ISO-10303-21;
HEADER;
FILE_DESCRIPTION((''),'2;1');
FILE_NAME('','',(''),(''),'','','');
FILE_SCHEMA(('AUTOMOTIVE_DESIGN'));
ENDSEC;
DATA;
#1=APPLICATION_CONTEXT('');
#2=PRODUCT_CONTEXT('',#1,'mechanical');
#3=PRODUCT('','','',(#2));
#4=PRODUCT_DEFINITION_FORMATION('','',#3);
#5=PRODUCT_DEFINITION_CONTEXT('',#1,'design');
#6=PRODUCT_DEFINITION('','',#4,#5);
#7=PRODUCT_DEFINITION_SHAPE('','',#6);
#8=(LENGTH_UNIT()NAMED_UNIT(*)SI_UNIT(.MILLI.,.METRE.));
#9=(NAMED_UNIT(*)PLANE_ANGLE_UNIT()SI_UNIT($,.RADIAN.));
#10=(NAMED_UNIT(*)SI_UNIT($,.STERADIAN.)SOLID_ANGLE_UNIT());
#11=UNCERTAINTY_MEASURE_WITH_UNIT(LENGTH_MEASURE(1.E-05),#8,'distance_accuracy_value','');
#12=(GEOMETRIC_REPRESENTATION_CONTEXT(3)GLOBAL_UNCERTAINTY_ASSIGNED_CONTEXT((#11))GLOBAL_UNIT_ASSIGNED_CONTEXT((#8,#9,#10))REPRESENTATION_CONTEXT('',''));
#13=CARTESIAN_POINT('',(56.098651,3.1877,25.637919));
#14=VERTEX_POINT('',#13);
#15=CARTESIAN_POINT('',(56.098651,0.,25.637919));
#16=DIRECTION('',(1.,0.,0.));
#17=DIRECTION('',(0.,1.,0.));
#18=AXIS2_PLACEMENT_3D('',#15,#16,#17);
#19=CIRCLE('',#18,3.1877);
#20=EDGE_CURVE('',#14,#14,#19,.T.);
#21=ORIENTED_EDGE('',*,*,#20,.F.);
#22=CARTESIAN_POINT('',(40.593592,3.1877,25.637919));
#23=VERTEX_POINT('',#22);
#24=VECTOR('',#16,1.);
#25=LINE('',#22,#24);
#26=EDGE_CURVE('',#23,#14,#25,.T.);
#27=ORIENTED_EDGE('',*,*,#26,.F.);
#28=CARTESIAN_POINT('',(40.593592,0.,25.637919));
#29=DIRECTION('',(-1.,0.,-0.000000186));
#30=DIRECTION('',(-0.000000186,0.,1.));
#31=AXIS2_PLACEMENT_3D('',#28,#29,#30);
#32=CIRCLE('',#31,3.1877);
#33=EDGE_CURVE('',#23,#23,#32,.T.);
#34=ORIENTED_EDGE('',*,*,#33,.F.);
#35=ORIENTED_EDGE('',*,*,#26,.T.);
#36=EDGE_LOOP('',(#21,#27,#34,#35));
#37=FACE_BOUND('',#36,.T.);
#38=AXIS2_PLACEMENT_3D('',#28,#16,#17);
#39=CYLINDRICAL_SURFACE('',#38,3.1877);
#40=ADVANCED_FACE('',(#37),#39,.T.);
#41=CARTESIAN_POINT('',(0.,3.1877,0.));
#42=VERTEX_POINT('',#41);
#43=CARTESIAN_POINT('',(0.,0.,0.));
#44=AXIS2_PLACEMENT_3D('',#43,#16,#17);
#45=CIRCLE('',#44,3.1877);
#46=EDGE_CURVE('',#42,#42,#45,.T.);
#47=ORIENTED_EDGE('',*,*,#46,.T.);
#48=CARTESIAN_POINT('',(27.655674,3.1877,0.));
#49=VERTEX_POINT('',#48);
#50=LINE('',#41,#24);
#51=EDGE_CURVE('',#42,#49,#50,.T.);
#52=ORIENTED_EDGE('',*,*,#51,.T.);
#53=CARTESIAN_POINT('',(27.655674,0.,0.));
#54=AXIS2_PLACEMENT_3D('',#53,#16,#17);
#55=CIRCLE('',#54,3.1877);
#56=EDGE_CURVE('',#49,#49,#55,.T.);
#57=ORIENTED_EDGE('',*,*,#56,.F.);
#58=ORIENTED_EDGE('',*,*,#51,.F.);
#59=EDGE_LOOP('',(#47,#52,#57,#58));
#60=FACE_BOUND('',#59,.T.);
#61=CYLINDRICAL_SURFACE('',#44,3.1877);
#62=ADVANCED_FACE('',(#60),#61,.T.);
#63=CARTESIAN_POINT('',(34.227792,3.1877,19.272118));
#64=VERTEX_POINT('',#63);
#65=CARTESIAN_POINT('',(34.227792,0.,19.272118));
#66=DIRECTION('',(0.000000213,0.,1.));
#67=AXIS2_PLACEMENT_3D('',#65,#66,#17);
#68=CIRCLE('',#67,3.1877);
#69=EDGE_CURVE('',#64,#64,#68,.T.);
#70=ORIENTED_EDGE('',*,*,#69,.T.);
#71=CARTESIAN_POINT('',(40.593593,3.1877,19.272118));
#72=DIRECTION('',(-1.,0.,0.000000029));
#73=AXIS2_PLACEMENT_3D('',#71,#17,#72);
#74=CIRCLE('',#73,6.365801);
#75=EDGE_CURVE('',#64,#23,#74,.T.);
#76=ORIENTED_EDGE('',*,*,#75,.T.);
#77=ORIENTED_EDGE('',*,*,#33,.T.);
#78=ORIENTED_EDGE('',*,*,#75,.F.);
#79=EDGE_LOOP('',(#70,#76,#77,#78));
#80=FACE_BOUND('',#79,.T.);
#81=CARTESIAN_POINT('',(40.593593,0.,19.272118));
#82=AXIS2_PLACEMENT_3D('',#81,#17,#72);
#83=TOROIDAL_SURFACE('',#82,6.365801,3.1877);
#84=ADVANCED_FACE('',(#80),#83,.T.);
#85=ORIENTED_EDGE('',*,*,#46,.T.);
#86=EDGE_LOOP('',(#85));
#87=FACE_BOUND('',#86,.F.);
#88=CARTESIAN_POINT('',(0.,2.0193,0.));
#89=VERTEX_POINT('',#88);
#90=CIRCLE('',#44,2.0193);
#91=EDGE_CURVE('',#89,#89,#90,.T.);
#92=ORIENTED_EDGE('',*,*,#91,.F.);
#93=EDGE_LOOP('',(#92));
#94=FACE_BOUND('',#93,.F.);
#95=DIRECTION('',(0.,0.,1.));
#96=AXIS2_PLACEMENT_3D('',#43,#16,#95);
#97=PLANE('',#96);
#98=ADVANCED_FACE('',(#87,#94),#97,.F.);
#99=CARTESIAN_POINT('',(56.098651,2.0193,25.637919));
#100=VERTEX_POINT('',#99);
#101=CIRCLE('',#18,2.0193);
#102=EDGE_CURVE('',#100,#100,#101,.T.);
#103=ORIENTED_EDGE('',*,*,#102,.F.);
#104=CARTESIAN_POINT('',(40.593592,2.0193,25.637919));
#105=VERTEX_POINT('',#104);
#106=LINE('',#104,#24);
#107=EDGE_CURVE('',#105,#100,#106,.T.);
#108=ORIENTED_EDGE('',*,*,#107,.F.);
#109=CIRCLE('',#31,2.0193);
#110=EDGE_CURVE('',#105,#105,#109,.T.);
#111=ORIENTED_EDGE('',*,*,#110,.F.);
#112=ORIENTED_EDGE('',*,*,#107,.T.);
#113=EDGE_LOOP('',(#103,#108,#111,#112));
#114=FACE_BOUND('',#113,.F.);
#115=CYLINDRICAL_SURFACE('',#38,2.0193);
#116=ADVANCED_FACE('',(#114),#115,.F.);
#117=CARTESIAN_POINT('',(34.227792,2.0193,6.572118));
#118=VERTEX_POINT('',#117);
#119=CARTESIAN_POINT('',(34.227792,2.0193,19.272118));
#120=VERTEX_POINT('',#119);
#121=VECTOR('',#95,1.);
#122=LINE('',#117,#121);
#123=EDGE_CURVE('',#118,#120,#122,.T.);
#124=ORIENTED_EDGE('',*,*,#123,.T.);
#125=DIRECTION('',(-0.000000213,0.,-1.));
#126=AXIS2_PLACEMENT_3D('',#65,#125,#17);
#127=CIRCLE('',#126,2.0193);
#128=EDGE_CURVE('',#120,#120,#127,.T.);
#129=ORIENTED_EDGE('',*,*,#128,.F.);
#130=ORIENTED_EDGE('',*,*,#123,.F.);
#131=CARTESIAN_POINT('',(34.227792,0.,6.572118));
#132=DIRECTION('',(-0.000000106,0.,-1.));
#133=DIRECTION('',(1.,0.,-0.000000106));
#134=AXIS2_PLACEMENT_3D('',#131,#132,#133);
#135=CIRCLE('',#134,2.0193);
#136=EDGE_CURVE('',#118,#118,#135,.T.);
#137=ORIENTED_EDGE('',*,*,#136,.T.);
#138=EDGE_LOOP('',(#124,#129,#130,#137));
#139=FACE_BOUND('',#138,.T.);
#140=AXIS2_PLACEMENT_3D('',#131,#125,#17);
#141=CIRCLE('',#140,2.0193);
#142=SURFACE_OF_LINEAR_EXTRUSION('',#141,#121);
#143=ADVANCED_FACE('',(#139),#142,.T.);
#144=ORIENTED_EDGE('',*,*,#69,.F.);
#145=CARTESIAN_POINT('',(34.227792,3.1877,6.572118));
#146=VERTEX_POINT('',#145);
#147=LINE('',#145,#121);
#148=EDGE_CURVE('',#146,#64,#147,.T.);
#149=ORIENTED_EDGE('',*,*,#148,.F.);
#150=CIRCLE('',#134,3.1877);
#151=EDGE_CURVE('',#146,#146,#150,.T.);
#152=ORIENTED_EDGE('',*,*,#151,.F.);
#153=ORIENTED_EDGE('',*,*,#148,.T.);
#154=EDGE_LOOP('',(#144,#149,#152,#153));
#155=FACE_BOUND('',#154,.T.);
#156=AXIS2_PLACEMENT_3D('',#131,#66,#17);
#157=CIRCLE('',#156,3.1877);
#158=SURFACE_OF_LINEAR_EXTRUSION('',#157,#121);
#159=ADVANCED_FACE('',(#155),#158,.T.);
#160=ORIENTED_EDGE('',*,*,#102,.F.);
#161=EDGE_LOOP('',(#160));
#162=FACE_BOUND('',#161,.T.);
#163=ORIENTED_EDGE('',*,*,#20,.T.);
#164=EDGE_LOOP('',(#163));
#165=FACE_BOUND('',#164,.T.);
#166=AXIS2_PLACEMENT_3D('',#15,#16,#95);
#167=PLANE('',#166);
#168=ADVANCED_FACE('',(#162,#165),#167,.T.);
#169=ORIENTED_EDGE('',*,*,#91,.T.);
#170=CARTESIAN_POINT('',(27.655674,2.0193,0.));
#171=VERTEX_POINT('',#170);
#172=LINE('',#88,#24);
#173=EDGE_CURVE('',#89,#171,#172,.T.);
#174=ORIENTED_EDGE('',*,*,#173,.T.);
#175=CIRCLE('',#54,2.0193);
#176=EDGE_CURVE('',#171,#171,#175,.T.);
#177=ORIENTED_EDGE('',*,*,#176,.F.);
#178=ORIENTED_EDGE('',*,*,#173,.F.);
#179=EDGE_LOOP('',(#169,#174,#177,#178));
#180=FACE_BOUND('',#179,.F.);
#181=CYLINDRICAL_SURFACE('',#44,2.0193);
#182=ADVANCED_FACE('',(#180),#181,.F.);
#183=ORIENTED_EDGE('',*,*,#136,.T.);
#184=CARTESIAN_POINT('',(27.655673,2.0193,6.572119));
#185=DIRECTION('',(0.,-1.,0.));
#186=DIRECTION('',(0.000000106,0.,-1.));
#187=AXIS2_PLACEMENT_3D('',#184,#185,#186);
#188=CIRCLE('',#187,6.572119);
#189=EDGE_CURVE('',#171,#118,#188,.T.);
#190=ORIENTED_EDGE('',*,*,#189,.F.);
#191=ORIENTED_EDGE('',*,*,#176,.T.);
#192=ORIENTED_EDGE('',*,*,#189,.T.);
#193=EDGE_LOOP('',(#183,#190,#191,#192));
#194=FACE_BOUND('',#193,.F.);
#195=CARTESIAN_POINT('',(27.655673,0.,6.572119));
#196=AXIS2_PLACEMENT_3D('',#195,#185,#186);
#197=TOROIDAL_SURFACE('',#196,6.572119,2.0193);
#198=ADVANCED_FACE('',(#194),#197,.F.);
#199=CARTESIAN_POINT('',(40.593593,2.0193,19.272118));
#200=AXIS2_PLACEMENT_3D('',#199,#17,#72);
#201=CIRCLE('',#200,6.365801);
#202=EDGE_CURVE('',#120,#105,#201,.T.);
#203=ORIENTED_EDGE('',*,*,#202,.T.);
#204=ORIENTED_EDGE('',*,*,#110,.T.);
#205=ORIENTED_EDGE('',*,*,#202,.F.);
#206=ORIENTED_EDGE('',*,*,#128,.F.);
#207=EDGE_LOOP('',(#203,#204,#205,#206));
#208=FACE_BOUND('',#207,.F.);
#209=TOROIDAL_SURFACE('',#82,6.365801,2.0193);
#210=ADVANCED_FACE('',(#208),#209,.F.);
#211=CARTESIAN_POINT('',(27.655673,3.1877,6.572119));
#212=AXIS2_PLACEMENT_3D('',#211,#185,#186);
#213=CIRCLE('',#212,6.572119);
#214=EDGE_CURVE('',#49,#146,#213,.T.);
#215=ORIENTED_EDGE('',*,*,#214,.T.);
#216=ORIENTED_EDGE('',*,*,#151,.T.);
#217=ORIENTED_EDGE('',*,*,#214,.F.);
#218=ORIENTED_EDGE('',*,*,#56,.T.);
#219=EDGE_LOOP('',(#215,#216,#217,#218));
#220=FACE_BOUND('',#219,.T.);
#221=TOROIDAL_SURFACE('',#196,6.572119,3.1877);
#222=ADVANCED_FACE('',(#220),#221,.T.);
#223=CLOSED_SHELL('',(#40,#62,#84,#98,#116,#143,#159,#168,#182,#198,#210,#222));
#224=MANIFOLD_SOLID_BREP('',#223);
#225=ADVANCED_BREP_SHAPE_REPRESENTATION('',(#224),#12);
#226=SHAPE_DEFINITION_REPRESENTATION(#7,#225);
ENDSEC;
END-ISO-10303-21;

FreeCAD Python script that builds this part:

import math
import FreeCAD as App
import Part
import Sketcher
Q = App.Units.Quantity

doc = App.newDocument("Part")
body = doc.addObject("PartDesign::Body", "Body")

sketch1 = body.newObject("Sketcher::SketchObject", "Sketch")
sketch1.AttachmentSupport = (doc.getObject("YZ_Plane"), [""])
sketch1.MapMode = "FlatFace"
sketch1.addGeometry([
    Part.Circle(App.Vector(0, 0, 0), App.Vector(0, 0, 1), 3.2),
    Part.Circle(App.Vector(0, 0, 0), App.Vector(0, 0, 1), 2),
], False)
sketch1.addConstraint([
    Sketcher.Constraint("Coincident", 0, 3, -1, 1),
    Sketcher.Constraint("Coincident", 1, 3, -1, 1),
    Sketcher.Constraint("Diameter", 0, Q("0.251 in")),
    Sketcher.Constraint("Diameter", 1, Q("0.159 in")),
])

sketch2 = body.newObject("Sketcher::SketchObject", "Sketch001")
sketch2.AttachmentSupport = (doc.getObject("XZ_Plane"), [""])
sketch2.MapMode = "FlatFace"
sketch2.addGeometry([
    Part.LineSegment(App.Vector(0, 0, 0), App.Vector(28, 0, 0)),
    Part.ArcOfCircle(Part.Circle(App.Vector(28, 7, 0), App.Vector(0, 0, 1), 7), math.radians(-90), math.radians(0)),
    Part.LineSegment(App.Vector(34, 7, 0), App.Vector(34, 19, 0)),
    Part.ArcOfCircle(Part.Circle(App.Vector(41, 19, 0), App.Vector(0, 0, 1), 6), math.radians(90), math.radians(180)),
    Part.LineSegment(App.Vector(41, 26, 0), App.Vector(56, 26, 0)),
], False)
sketch2.addConstraint([
    Sketcher.Constraint("Tangent", 0, 2, 1, 1),
    Sketcher.Constraint("Tangent", 1, 2, 2, 1),
    Sketcher.Constraint("Tangent", 2, 2, 3, 2),
    Sketcher.Constraint("Tangent", 3, 1, 4, 1),
    Sketcher.Constraint("Horizontal", 0),
    Sketcher.Constraint("Vertical", 2),
    Sketcher.Constraint("Horizontal", 4),
    Sketcher.Constraint("Coincident", 0, 1, -1, 1),
    Sketcher.Constraint("DistanceY", 2, 1, 2, 2, Q("0.5 in")),
    Sketcher.Constraint("Radius", 3, Q("6.365801 mm")),
    Sketcher.Constraint("Radius", 1, Q("6.572119 mm")),
    Sketcher.Constraint("DistanceX", 4, 1, 4, 2, Q("15.505059 mm")),
    Sketcher.Constraint("DistanceX", 0, 1, 0, 2, Q("27.655674 mm")),
])
doc.recompute()

additivepipe = body.newObject("PartDesign::AdditivePipe", "AdditivePipe")
additivepipe.Profile = sketch1
additivepipe.Spine = (sketch2, ["Edge1", "Edge2", "Edge3", "Edge4", "Edge5"])

doc.recompute()
